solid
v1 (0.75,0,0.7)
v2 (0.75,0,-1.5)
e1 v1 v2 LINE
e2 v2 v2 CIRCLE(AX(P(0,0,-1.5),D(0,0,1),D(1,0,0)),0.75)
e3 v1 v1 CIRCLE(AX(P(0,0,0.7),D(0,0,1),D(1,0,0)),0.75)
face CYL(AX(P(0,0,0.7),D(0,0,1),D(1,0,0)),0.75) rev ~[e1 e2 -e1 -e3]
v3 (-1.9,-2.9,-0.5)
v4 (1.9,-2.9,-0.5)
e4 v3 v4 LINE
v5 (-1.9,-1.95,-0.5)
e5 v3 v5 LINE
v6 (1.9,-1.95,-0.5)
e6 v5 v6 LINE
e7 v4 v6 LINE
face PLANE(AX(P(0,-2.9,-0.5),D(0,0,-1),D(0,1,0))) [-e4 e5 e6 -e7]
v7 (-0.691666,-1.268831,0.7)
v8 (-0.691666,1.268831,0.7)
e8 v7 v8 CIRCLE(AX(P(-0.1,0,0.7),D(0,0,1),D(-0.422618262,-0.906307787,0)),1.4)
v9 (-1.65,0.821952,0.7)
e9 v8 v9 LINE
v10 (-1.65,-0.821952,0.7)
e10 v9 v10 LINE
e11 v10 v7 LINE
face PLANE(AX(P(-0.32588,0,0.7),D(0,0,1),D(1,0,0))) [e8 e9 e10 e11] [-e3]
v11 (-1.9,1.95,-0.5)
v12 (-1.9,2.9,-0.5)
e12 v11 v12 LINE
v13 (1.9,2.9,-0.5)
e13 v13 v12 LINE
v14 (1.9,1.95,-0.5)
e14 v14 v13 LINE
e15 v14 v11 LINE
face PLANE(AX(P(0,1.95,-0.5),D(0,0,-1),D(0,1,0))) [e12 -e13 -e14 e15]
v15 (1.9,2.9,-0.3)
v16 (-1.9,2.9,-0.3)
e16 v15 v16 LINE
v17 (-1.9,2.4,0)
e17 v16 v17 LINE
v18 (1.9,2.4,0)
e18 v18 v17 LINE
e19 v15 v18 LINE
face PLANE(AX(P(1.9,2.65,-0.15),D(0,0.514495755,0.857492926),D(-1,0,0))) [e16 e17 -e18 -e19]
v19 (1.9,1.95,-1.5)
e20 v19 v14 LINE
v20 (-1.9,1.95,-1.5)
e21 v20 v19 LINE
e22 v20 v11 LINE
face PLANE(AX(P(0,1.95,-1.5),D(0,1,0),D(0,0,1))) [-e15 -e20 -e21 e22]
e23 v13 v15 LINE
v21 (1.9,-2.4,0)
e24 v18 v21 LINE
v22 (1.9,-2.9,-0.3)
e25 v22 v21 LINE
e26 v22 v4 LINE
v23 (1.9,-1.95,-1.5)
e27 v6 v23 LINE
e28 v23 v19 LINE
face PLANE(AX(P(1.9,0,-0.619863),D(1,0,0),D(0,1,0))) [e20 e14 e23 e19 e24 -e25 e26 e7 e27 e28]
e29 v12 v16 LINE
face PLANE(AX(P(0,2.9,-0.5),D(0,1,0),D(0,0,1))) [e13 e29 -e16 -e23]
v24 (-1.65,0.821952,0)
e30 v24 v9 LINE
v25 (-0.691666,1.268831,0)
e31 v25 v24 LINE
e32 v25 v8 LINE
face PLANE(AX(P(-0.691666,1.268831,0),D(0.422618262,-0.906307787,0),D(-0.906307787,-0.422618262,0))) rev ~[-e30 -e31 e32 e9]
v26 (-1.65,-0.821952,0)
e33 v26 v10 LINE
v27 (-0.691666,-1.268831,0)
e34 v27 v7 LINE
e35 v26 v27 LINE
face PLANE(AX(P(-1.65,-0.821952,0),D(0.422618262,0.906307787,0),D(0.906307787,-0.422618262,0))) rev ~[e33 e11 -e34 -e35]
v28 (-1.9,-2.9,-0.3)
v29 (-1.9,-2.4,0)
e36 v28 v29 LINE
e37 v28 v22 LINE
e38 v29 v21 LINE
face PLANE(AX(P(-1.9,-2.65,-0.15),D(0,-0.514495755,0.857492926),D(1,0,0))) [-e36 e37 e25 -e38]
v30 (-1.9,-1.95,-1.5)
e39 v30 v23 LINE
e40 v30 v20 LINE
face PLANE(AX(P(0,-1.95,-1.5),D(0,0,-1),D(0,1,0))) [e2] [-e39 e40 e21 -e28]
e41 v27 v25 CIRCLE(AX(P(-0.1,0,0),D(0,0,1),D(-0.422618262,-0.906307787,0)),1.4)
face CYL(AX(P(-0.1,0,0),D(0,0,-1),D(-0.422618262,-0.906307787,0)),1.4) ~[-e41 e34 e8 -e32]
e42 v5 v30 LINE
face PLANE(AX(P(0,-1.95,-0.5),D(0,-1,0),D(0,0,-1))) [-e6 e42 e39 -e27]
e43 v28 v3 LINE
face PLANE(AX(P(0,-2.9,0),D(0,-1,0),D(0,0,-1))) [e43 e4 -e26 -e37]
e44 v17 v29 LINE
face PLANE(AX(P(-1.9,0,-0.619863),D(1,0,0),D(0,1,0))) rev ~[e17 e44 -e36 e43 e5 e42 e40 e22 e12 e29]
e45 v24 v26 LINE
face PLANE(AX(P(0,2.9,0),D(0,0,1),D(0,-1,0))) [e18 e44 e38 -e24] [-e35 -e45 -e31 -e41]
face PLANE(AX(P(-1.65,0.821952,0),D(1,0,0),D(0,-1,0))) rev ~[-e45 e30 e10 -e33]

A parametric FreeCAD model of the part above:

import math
import FreeCAD as App
import Part
import Sketcher

V = App.Vector
Q = App.Units.Quantity


def edges_at(feature, points):
    """Names of the edges that pass closest to the given points."""
    edges = feature.Shape.Edges
    near = lambda p: min(range(len(edges)), key=lambda i: edges[i].distToShape(Part.Vertex(*p))[0])
    return sorted({f"Edge{near(p) + 1}" for p in points})

doc = App.newDocument("Part")
params = doc.addObject("Spreadsheet::Sheet", "Params")
for row, (alias, value) in enumerate([
    ("sketch1_height", "1 mm"),
    ("sketch1_width", "5.8 mm"),
    ("sketch1_width2", "3.9 mm"),
    ("sketch1_height2", "0.5 mm"),
    ("pad1_length", "3.8 mm"),
    ("chamfer_size", "0.3 mm"),
    ("chamfer_size2", "0.5 mm"),
    ("chamfer2_size", "0.3 mm"),
    ("chamfer2_size2", "0.5 mm"),
    ("sketch2_radius", "1.4 mm"),
    ("pad2_length", "0.7 mm"),
    ("sketch3_diameter", "1.5 mm"),
], start=1):
    params.set(f"A{row}", alias)
    params.set(f"B{row}", "=" + value)
    params.setAlias(f"B{row}", alias)

body = doc.addObject("PartDesign::Body", "Body")

sketch1 = body.newObject("Sketcher::SketchObject", "Sketch")
sketch1.AttachmentSupport = (doc.getObject("YZ_Plane"), [""])
sketch1.MapMode = "FlatFace"
sketch1.addGeometry([
    Part.LineSegment(V(2.9, 0, 0), V(-2.9, 0, 0)),
    Part.LineSegment(V(-2.9, 0, 0), V(-2.9, -0.5, 0)),
    Part.LineSegment(V(-2.9, -0.5, 0), V(-1.9, -0.5, 0)),
    Part.LineSegment(V(-1.9, -0.5, 0), V(-1.9, -1.5, 0)),
    Part.LineSegment(V(-1.9, -1.5, 0), V(1.9, -1.5, 0)),
    Part.LineSegment(V(1.9, -1.5, 0), V(1.9, -0.5, 0)),
    Part.LineSegment(V(1.9, -0.5, 0), V(2.9, -0.5, 0)),
    Part.LineSegment(V(2.9, -0.5, 0), V(2.9, 0, 0)),
], False)
sketch1.addConstraint([
    Sketcher.Constraint("Coincident", 0, 2, 1, 1),
    Sketcher.Constraint("Coincident", 1, 2, 2, 1),
    Sketcher.Constraint("Coincident", 2, 2, 3, 1),
    Sketcher.Constraint("Coincident", 3, 2, 4, 1),
    Sketcher.Constraint("Coincident", 4, 2, 5, 1),
    Sketcher.Constraint("Coincident", 5, 2, 6, 1),
    Sketcher.Constraint("Coincident", 6, 2, 7, 1),
    Sketcher.Constraint("Coincident", 7, 2, 0, 1),
    Sketcher.Constraint("Horizontal", 0),
    Sketcher.Constraint("Vertical", 1),
    Sketcher.Constraint("Horizontal", 2),
    Sketcher.Constraint("Vertical", 3),
    Sketcher.Constraint("Horizontal", 4),
    Sketcher.Constraint("Vertical", 5),
    Sketcher.Constraint("Horizontal", 6),
    Sketcher.Constraint("Vertical", 7),
    Sketcher.Constraint("Symmetric", 0, 2, 7, 2, -1, 1),
    Sketcher.Constraint("Symmetric", 2, 2, 5, 2, -2),
    Sketcher.Constraint("DistanceY", 3, 2, 3, 1, 1.0),
    Sketcher.Constraint("DistanceX", 0, 2, 0, 1, 5.8),
    Sketcher.Constraint("DistanceX", 4, 1, 4, 2, 3.9),
    Sketcher.Constraint("DistanceY", 1, 2, 1, 1, 0.5),
])
sketch1.setExpression("Constraints[18]", "Params.sketch1_height")
sketch1.setExpression("Constraints[19]", "Params.sketch1_width")
sketch1.setExpression("Constraints[20]", "Params.sketch1_width2")
sketch1.setExpression("Constraints[21]", "Params.sketch1_height2")
pad1 = body.newObject("PartDesign::Pad", "Pad")
pad1.Profile = sketch1
pad1.setExpression("Length", "Params.pad1_length")
pad1.Midplane = True
doc.recompute()

chamfer = body.newObject("PartDesign::Chamfer", "Chamfer")
chamfer.Base = (pad1, edges_at(pad1, [(0, 2.9, 0)]))
chamfer.ChamferType = "Two distances"
chamfer.setExpression("Size", "Params.chamfer_size")
chamfer.setExpression("Size2", "Params.chamfer_size2")
chamfer.FlipDirection = True
doc.recompute()

chamfer2 = body.newObject("PartDesign::Chamfer", "Chamfer001")
chamfer2.Base = (chamfer, edges_at(chamfer, [(0, -2.9, 0)]))
chamfer2.ChamferType = "Two distances"
chamfer2.setExpression("Size", "Params.chamfer2_size")
chamfer2.setExpression("Size2", "Params.chamfer2_size2")
chamfer2.FlipDirection = True

sketch2 = body.newObject("Sketcher::SketchObject", "Sketch001")
sketch2.AttachmentSupport = (doc.getObject("XY_Plane"), [""])
sketch2.MapMode = "FlatFace"
sketch2.addGeometry([
    Part.LineSegment(V(-1.6, -0.8, 0), V(-0.7, -1.3, 0)),
    Part.ArcOfCircle(Part.Circle(V(-0.1, 0, 0), V(0, 0, 1), 1.4), math.radians(-115), math.radians(115)),
    Part.LineSegment(V(-0.7, 1.3, 0), V(-1.6, 0.8, 0)),
    Part.LineSegment(V(-1.6, 0.8, 0), V(-1.6, -0.8, 0)),
], False)
sketch2.addConstraint([
    Sketcher.Constraint("Tangent", 0, 2, 1, 1),
    Sketcher.Constraint("Tangent", 1, 2, 2, 1),
    Sketcher.Constraint("Coincident", 2, 2, 3, 1),
    Sketcher.Constraint("Coincident", 3, 2, 0, 1),
    Sketcher.Constraint("Vertical", 3),
    Sketcher.Constraint("Symmetric", 0, 2, 1, 2, -1),
    Sketcher.Constraint("Radius", 1, 1.4),
    Sketcher.Constraint("Angle", 0, Q("-25 deg")),
    Sketcher.Constraint("DistanceX", 1, 3, -1, 1, 0.1),
    Sketcher.Constraint("DistanceX", 2, 2, -1, 1, 1.65),
])
sketch2.setExpression("Constraints[6]", "Params.sketch2_radius")
pad2 = body.newObject("PartDesign::Pad", "Pad001")
pad2.Profile = sketch2
pad2.setExpression("Length", "Params.pad2_length")

sketch3 = body.newObject("Sketcher::SketchObject", "Sketch002")
sketch3.AttachmentSupport = (doc.getObject("XY_Plane"), [""])
sketch3.MapMode = "FlatFace"
sketch3.AttachmentOffset = App.Placement(V(0, 0, 0.7), App.Rotation())
sketch3.addGeometry(Part.Circle(V(0, 0, 0), V(0, 0, 1), 0.8), False)
sketch3.addConstraint([
    Sketcher.Constraint("Coincident", 0, 3, -1, 1),
    Sketcher.Constraint("Diameter", 0, 1.5),
])
sketch3.setExpression("Constraints[1]", "Params.sketch3_diameter")
pocket1 = body.newObject("PartDesign::Pocket", "Pocket")
pocket1.Profile = sketch3
pocket1.Type = "ThroughAll"

doc.recompute()
